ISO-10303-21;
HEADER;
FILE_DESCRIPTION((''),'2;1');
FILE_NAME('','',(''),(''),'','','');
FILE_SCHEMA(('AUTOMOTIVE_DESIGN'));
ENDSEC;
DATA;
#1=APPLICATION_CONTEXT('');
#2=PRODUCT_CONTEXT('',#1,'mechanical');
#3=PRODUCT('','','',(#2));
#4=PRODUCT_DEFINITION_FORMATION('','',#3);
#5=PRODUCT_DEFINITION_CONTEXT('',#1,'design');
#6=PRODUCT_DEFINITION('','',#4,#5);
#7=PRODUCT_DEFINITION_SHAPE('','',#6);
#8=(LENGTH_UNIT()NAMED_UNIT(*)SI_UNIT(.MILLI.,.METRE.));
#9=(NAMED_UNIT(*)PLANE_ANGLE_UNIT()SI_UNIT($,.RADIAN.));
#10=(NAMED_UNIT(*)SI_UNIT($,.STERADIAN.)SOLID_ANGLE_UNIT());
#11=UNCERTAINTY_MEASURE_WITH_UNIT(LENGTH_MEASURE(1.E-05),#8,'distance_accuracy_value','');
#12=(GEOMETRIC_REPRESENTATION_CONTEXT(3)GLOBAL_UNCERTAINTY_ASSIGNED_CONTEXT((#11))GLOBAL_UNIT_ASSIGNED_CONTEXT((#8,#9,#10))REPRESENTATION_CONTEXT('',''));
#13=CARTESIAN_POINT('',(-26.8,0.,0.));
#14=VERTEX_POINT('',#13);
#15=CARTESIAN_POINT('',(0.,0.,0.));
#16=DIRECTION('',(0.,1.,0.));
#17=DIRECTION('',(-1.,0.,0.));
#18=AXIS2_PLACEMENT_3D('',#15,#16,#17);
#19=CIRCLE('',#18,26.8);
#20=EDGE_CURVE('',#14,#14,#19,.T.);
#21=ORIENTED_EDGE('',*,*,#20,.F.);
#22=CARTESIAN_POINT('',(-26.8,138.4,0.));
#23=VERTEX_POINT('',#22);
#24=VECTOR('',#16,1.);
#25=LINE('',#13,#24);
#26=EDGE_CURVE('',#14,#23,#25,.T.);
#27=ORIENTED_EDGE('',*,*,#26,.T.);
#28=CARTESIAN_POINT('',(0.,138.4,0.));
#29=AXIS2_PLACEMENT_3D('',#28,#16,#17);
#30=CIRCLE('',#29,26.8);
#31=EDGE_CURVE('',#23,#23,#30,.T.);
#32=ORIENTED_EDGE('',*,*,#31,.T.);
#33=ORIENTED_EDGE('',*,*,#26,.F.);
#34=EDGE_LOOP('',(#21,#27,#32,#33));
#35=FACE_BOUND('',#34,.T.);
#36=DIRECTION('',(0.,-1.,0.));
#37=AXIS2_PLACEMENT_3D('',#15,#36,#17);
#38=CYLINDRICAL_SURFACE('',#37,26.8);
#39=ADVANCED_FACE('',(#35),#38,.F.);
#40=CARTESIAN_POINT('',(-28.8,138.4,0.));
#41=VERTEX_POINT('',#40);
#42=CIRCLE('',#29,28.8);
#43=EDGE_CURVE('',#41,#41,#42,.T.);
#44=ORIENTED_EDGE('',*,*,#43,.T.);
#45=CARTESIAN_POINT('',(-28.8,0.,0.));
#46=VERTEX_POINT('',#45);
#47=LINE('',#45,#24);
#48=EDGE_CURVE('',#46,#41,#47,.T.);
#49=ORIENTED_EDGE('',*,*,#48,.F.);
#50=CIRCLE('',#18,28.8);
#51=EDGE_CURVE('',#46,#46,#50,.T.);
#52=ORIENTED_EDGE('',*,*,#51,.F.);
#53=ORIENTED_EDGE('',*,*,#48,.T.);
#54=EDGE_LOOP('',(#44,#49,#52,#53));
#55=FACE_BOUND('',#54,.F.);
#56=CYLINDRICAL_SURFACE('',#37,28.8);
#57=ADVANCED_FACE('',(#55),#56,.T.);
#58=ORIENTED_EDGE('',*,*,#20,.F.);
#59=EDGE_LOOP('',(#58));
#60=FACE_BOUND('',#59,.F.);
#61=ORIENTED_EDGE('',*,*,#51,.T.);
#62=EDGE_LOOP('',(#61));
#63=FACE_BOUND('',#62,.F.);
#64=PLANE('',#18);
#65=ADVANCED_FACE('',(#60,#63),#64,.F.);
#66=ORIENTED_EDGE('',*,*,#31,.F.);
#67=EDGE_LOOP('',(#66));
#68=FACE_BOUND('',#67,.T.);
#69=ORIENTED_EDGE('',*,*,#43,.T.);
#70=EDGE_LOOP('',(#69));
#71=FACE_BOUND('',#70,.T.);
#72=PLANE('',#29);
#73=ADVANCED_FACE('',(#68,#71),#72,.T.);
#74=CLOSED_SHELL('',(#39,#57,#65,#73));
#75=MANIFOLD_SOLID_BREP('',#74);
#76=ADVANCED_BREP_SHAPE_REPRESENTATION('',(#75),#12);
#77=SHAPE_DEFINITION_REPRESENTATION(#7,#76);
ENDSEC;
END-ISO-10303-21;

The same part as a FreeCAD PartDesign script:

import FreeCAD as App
import Part
import Sketcher
from FreeCAD import Vector
Q = App.Units.Quantity

doc = App.newDocument("Part")
params = doc.addObject("Spreadsheet::Sheet", "Params")
for row, (alias, value) in enumerate([
    ("sketch1_diameter", "57.6 mm"),
    ("sketch1_diameter2", "53.6 mm"),
    ("pad1_length", "138.4 mm"),
], start=1):
    params.set(f"A{row}", alias)
    params.set(f"B{row}", "=" + value)
    params.setAlias(f"B{row}", alias)

body = doc.addObject("PartDesign::Body", "Body")

# Sketch on XZ plane
sketch1 = body.newObject("Sketcher::SketchObject", "Sketch")
sketch1.AttachmentSupport = (doc.getObject("XZ_Plane"), [""])
sketch1.MapMode = "FlatFace"
sketch1.addGeometry([
    Part.Circle(Vector(0, 0, 0), Vector(0, 0, 1), 28.8),
    Part.Circle(Vector(0, 0, 0), Vector(0, 0, 1), 26.8),
], False)
sketch1.addConstraint([
    Sketcher.Constraint("Coincident", 0, 3, -1, 1),
    Sketcher.Constraint("Coincident", 1, 3, -1, 1),
    Sketcher.Constraint("Diameter", 0, Q("57.6 mm")),
    Sketcher.Constraint("Diameter", 1, Q("53.6 mm")),
])
sketch1.setExpression("Constraints[2]", "Params.sketch1_diameter")
sketch1.setExpression("Constraints[3]", "Params.sketch1_diameter2")
pad1 = body.newObject("PartDesign::Pad", "Pad")
pad1.Profile = sketch1
pad1.setExpression("Length", "Params.pad1_length")
pad1.Reversed = True

doc.recompute()
